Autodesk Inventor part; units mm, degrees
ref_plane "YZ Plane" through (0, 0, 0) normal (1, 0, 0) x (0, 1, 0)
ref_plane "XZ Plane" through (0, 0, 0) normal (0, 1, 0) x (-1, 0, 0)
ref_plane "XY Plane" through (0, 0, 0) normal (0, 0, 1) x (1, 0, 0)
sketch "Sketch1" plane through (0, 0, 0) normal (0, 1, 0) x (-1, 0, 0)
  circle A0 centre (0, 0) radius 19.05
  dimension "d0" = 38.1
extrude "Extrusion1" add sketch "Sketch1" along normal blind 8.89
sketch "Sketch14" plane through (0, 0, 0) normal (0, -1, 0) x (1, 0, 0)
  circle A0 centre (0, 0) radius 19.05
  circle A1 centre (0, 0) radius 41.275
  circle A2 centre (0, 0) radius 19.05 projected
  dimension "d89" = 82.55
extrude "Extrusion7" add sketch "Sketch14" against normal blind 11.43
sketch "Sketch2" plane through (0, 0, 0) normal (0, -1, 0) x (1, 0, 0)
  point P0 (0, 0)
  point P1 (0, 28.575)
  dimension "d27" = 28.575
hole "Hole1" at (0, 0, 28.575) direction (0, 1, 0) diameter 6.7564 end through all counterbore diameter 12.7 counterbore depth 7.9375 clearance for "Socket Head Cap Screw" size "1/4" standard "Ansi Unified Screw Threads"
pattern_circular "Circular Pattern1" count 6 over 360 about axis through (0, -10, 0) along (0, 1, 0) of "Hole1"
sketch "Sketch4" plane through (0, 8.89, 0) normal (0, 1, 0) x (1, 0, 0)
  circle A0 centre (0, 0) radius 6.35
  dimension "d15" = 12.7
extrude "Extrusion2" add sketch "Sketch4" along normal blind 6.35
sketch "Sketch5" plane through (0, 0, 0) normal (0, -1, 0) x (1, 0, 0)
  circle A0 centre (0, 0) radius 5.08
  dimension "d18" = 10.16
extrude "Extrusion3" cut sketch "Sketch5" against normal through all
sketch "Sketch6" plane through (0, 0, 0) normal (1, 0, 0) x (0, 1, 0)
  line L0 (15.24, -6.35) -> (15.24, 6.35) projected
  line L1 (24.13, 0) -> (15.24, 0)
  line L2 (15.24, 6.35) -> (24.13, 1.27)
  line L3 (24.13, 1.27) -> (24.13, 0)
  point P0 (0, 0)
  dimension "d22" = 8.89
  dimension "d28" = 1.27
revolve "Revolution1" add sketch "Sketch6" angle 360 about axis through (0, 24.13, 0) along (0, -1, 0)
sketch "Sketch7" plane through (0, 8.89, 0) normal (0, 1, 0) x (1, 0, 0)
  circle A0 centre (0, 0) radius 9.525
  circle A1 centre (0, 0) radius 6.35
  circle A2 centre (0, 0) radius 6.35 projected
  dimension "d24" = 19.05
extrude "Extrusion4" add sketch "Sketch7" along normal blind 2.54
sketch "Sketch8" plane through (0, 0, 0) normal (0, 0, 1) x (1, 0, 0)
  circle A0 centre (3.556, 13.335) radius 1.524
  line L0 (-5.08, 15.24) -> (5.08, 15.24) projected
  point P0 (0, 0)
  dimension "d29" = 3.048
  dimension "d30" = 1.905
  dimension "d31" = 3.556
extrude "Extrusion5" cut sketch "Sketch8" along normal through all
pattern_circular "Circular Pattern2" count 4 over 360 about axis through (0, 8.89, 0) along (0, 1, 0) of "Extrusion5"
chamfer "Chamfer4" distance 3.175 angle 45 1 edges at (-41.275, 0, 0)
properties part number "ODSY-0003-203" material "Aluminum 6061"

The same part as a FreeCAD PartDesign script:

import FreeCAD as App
import Part
import Sketcher

V = App.Vector
Q = App.Units.Quantity


def edges_at(feature, points):
    """Names of the edges that pass closest to the given points."""
    edges = feature.Shape.Edges
    near = lambda p: min(range(len(edges)), key=lambda i: edges[i].distToShape(Part.Vertex(*p))[0])
    return sorted({f"Edge{near(p) + 1}" for p in points})

doc = App.newDocument("Part")
params = doc.addObject("Spreadsheet::Sheet", "Params")
for row, (alias, value) in enumerate([
    ("sketch1_diameter", "1.5 in"),
    ("pad1_length", "0.35 in"),
    ("sketch2_diameter", "3.25 in"),
    ("sketch2_diameter2", "1.5 in"),
    ("pad2_length", "0.45 in"),
    ("sketch3_diameter", "0.266 in"),
    ("hole_diameter", "0.266 in"),
    ("hole_cbore_diameter", "0.5 in"),
    ("hole_cbore_depth", "0.3125 in"),
    ("sketch4_diameter", "0.5 in"),
    ("pad3_length", "0.25 in"),
    ("sketch5_diameter", "0.4 in"),
    ("sketch6_width", "0.35 in"),
    ("sketch6_height", "0.05 in"),
    ("sketch6_height2", "0.25 in"),
    ("revolution_angle", "360 deg"),
    ("sketch7_diameter", "0.75 in"),
    ("sketch7_diameter2", "0.5 in"),
    ("pad4_length", "0.1 in"),
    ("sketch8_diameter", "0.12 in"),
    ("chamfer_size", "0.125 in"),
], start=1):
    params.set(f"A{row}", alias)
    params.set(f"B{row}", "=" + value)
    params.setAlias(f"B{row}", alias)

body = doc.addObject("PartDesign::Body", "Body")

# Sketch on XZ plane
sketch1 = doc.addObject("Sketcher::SketchObject", "Sketch")
body.addObject(sketch1)
sketch1.AttachmentSupport = (doc.XZ_Plane, [""])
sketch1.MapMode = "FlatFace"
sketch1.addGeometry(Part.Circle(V(0, 0, 0), V(0, 0, 1), 19.05), False)
sketch1.addConstraint(Sketcher.Constraint("Coincident", 0, 3, -1, 1))
sketch1.addConstraint(Sketcher.Constraint("Diameter", 0, Q("1.5 in")))
sketch1.setExpression("Constraints[1]", "Params.sketch1_diameter")
pad1 = doc.addObject("PartDesign::Pad", "Pad")
body.addObject(pad1)
pad1.Profile = sketch1
pad1.setExpression("Length", "Params.pad1_length")
pad1.Reversed = True

# Sketch on XZ plane
sketch2 = doc.addObject("Sketcher::SketchObject", "Sketch001")
body.addObject(sketch2)
sketch2.AttachmentSupport = (doc.XZ_Plane, [""])
sketch2.MapMode = "FlatFace"
sketch2.addGeometry(Part.Circle(V(0, 0, 0), V(0, 0, 1), 41.275), False)
sketch2.addGeometry(Part.Circle(V(0, 0, 0), V(0, 0, 1), 19.05), False)
sketch2.addConstraint(Sketcher.Constraint("Coincident", 0, 3, -1, 1))
sketch2.addConstraint(Sketcher.Constraint("Coincident", 1, 3, -1, 1))
sketch2.addConstraint(Sketcher.Constraint("Diameter", 0, Q("3.25 in")))
sketch2.addConstraint(Sketcher.Constraint("Diameter", 1, Q("1.5 in")))
sketch2.setExpression("Constraints[2]", "Params.sketch2_diameter")
sketch2.setExpression("Constraints[3]", "Params.sketch2_diameter2")
pad2 = doc.addObject("PartDesign::Pad", "Pad001")
body.addObject(pad2)
pad2.Profile = sketch2
pad2.setExpression("Length", "Params.pad2_length")
pad2.Reversed = True

# Sketch on XZ plane
sketch3 = doc.addObject("Sketcher::SketchObject", "Sketch002")
body.addObject(sketch3)
sketch3.AttachmentSupport = (doc.XZ_Plane, [""])
sketch3.MapMode = "FlatFace"
sketch3.addGeometry(Part.Circle(V(0, 28.575, 0), V(0, 0, 1), 3.3782), False)
sketch3.addConstraint(Sketcher.Constraint("PointOnObject", 0, 3, -2))
sketch3.addConstraint(Sketcher.Constraint("Diameter", 0, Q("0.266 in")))
sketch3.addConstraint(Sketcher.Constraint("DistanceY", -1, 1, 0, 3, Q("1.125 in")))
sketch3.setExpression("Constraints[1]", "Params.sketch3_diameter")
doc.recompute()
hole = doc.addObject("PartDesign::Hole", "Hole")
body.addObject(hole)
hole.Profile = sketch3
hole.ThreadType = "None"
hole.setExpression("Diameter", "Params.hole_diameter")
hole.DepthType = "ThroughAll"
hole.HoleCutType = "Counterbore"
hole.setExpression("HoleCutDiameter", "Params.hole_cbore_diameter")
hole.setExpression("HoleCutDepth", "Params.hole_cbore_depth")
doc.recompute()

polarpattern = doc.addObject("PartDesign::PolarPattern", "PolarPattern")
body.addObject(polarpattern)
polarpattern.Originals = [hole]
polarpattern.Axis = (doc.Y_Axis, [""])
polarpattern.Angle = 360
polarpattern.Occurrences = 6
body.Tip = polarpattern

# Sketch on XZ plane
sketch4 = doc.addObject("Sketcher::SketchObject", "Sketch003")
body.addObject(sketch4)
sketch4.AttachmentSupport = (doc.XZ_Plane, [""])
sketch4.MapMode = "FlatFace"
sketch4.AttachmentOffset = App.Placement(V(0, 0, -0.35 * 25.4), App.Rotation())
sketch4.addGeometry(Part.Circle(V(0, 0, 0), V(0, 0, 1), 6.35), False)
sketch4.addConstraint(Sketcher.Constraint("Coincident", 0, 3, -1, 1))
sketch4.addConstraint(Sketcher.Constraint("Diameter", 0, Q("0.5 in")))
sketch4.setExpression("Constraints[1]", "Params.sketch4_diameter")
pad3 = doc.addObject("PartDesign::Pad", "Pad002")
body.addObject(pad3)
pad3.Profile = sketch4
pad3.setExpression("Length", "Params.pad3_length")
pad3.Reversed = True

# Sketch on XZ plane
sketch5 = doc.addObject("Sketcher::SketchObject", "Sketch004")
body.addObject(sketch5)
sketch5.AttachmentSupport = (doc.XZ_Plane, [""])
sketch5.MapMode = "FlatFace"
sketch5.addGeometry(Part.Circle(V(0, 0, 0), V(0, 0, 1), 5.08), False)
sketch5.addConstraint(Sketcher.Constraint("Coincident", 0, 3, -1, 1))
sketch5.addConstraint(Sketcher.Constraint("Diameter", 0, Q("0.4 in")))
sketch5.setExpression("Constraints[1]", "Params.sketch5_diameter")
pocket1 = doc.addObject("PartDesign::Pocket", "Pocket")
body.addObject(pocket1)
pocket1.Profile = sketch5
pocket1.Type = "ThroughAll"

# Sketch on YZ plane
sketch6 = doc.addObject("Sketcher::SketchObject", "Sketch005")
body.addObject(sketch6)
sketch6.AttachmentSupport = (doc.YZ_Plane, [""])
sketch6.MapMode = "FlatFace"
sketch6.addGeometry(Part.LineSegment(V(15.24, 6.35, 0), V(15.24, 0, 0)), False)
sketch6.addGeometry(Part.LineSegment(V(15.24, 0, 0), V(24.13, 0, 0)), False)
sketch6.addGeometry(Part.LineSegment(V(24.13, 0, 0), V(24.13, 1.27, 0)), False)
sketch6.addGeometry(Part.LineSegment(V(24.13, 1.27, 0), V(15.24, 6.35, 0)), False)
sketch6.addConstraint(Sketcher.Constraint("Coincident", 0, 2, 1, 1))
sketch6.addConstraint(Sketcher.Constraint("Coincident", 1, 2, 2, 1))
sketch6.addConstraint(Sketcher.Constraint("Coincident", 2, 2, 3, 1))
sketch6.addConstraint(Sketcher.Constraint("Coincident", 3, 2, 0, 1))
sketch6.addConstraint(Sketcher.Constraint("Vertical", 0))
sketch6.addConstraint(Sketcher.Constraint("Horizontal", 1))
sketch6.addConstraint(Sketcher.Constraint("Vertical", 2))
sketch6.addConstraint(Sketcher.Constraint("PointOnObject", 0, 2, -1))
sketch6.addConstraint(Sketcher.Constraint("DistanceX", 1, 1, 1, 2, Q("0.35 in")))
sketch6.addConstraint(Sketcher.Constraint("DistanceY", 2, 1, 2, 2, Q("0.05 in")))
sketch6.addConstraint(Sketcher.Constraint("DistanceY", 0, 2, 0, 1, Q("0.25 in")))
sketch6.addConstraint(Sketcher.Constraint("DistanceX", -1, 1, 0, 2, Q("0.6 in")))
sketch6.setExpression("Constraints[8]", "Params.sketch6_width")
sketch6.setExpression("Constraints[9]", "Params.sketch6_height")
sketch6.setExpression("Constraints[10]", "Params.sketch6_height2")
revolution = doc.addObject("PartDesign::Revolution", "Revolution")
body.addObject(revolution)
revolution.Profile = sketch6
revolution.ReferenceAxis = (sketch6, ["H_Axis"])
revolution.setExpression("Angle", "Params.revolution_angle")

# Sketch on XZ plane
sketch7 = doc.addObject("Sketcher::SketchObject", "Sketch006")
body.addObject(sketch7)
sketch7.AttachmentSupport = (doc.XZ_Plane, [""])
sketch7.MapMode = "FlatFace"
sketch7.AttachmentOffset = App.Placement(V(0, 0, -0.35 * 25.4), App.Rotation())
sketch7.addGeometry(Part.Circle(V(0, 0, 0), V(0, 0, 1), 9.525), False)
sketch7.addGeometry(Part.Circle(V(0, 0, 0), V(0, 0, 1), 6.35), False)
sketch7.addConstraint(Sketcher.Constraint("Coincident", 0, 3, -1, 1))
sketch7.addConstraint(Sketcher.Constraint("Coincident", 1, 3, -1, 1))
sketch7.addConstraint(Sketcher.Constraint("Diameter", 0, Q("0.75 in")))
sketch7.addConstraint(Sketcher.Constraint("Diameter", 1, Q("0.5 in")))
sketch7.setExpression("Constraints[2]", "Params.sketch7_diameter")
sketch7.setExpression("Constraints[3]", "Params.sketch7_diameter2")
pad4 = doc.addObject("PartDesign::Pad", "Pad003")
body.addObject(pad4)
pad4.Profile = sketch7
pad4.setExpression("Length", "Params.pad4_length")
pad4.Reversed = True

# Sketch on XY plane
sketch8 = doc.addObject("Sketcher::SketchObject", "Sketch007")
body.addObject(sketch8)
sketch8.AttachmentSupport = (doc.XY_Plane, [""])
sketch8.MapMode = "FlatFace"
sketch8.addGeometry(Part.Circle(V(3.556, 13.335, 0), V(0, 0, 1), 1.524), False)
sketch8.addConstraint(Sketcher.Constraint("Diameter", 0, Q("0.12 in")))
sketch8.addConstraint(Sketcher.Constraint("DistanceX", -1, 1, 0, 3, Q("0.14 in")))
sketch8.addConstraint(Sketcher.Constraint("DistanceY", -1, 1, 0, 3, Q("0.525 in")))
sketch8.setExpression("Constraints[0]", "Params.sketch8_diameter")
pocket2 = doc.addObject("PartDesign::Pocket", "Pocket001")
body.addObject(pocket2)
pocket2.Profile = sketch8
pocket2.Type = "ThroughAll"
pocket2.Reversed = True
doc.recompute()

polarpattern2 = doc.addObject("PartDesign::PolarPattern", "PolarPattern001")
body.addObject(polarpattern2)
polarpattern2.Originals = [pocket2]
polarpattern2.Axis = (doc.Y_Axis, [""])
polarpattern2.Angle = 360
polarpattern2.Occurrences = 4
body.Tip = polarpattern2
doc.recompute()

chamfer = doc.addObject("PartDesign::Chamfer", "Chamfer")
body.addObject(chamfer)
chamfer.Base = (polarpattern2, edges_at(polarpattern2, [(-41.275, 0, 0)]))
chamfer.setExpression("Size", "Params.chamfer_size")

doc.recompute()
